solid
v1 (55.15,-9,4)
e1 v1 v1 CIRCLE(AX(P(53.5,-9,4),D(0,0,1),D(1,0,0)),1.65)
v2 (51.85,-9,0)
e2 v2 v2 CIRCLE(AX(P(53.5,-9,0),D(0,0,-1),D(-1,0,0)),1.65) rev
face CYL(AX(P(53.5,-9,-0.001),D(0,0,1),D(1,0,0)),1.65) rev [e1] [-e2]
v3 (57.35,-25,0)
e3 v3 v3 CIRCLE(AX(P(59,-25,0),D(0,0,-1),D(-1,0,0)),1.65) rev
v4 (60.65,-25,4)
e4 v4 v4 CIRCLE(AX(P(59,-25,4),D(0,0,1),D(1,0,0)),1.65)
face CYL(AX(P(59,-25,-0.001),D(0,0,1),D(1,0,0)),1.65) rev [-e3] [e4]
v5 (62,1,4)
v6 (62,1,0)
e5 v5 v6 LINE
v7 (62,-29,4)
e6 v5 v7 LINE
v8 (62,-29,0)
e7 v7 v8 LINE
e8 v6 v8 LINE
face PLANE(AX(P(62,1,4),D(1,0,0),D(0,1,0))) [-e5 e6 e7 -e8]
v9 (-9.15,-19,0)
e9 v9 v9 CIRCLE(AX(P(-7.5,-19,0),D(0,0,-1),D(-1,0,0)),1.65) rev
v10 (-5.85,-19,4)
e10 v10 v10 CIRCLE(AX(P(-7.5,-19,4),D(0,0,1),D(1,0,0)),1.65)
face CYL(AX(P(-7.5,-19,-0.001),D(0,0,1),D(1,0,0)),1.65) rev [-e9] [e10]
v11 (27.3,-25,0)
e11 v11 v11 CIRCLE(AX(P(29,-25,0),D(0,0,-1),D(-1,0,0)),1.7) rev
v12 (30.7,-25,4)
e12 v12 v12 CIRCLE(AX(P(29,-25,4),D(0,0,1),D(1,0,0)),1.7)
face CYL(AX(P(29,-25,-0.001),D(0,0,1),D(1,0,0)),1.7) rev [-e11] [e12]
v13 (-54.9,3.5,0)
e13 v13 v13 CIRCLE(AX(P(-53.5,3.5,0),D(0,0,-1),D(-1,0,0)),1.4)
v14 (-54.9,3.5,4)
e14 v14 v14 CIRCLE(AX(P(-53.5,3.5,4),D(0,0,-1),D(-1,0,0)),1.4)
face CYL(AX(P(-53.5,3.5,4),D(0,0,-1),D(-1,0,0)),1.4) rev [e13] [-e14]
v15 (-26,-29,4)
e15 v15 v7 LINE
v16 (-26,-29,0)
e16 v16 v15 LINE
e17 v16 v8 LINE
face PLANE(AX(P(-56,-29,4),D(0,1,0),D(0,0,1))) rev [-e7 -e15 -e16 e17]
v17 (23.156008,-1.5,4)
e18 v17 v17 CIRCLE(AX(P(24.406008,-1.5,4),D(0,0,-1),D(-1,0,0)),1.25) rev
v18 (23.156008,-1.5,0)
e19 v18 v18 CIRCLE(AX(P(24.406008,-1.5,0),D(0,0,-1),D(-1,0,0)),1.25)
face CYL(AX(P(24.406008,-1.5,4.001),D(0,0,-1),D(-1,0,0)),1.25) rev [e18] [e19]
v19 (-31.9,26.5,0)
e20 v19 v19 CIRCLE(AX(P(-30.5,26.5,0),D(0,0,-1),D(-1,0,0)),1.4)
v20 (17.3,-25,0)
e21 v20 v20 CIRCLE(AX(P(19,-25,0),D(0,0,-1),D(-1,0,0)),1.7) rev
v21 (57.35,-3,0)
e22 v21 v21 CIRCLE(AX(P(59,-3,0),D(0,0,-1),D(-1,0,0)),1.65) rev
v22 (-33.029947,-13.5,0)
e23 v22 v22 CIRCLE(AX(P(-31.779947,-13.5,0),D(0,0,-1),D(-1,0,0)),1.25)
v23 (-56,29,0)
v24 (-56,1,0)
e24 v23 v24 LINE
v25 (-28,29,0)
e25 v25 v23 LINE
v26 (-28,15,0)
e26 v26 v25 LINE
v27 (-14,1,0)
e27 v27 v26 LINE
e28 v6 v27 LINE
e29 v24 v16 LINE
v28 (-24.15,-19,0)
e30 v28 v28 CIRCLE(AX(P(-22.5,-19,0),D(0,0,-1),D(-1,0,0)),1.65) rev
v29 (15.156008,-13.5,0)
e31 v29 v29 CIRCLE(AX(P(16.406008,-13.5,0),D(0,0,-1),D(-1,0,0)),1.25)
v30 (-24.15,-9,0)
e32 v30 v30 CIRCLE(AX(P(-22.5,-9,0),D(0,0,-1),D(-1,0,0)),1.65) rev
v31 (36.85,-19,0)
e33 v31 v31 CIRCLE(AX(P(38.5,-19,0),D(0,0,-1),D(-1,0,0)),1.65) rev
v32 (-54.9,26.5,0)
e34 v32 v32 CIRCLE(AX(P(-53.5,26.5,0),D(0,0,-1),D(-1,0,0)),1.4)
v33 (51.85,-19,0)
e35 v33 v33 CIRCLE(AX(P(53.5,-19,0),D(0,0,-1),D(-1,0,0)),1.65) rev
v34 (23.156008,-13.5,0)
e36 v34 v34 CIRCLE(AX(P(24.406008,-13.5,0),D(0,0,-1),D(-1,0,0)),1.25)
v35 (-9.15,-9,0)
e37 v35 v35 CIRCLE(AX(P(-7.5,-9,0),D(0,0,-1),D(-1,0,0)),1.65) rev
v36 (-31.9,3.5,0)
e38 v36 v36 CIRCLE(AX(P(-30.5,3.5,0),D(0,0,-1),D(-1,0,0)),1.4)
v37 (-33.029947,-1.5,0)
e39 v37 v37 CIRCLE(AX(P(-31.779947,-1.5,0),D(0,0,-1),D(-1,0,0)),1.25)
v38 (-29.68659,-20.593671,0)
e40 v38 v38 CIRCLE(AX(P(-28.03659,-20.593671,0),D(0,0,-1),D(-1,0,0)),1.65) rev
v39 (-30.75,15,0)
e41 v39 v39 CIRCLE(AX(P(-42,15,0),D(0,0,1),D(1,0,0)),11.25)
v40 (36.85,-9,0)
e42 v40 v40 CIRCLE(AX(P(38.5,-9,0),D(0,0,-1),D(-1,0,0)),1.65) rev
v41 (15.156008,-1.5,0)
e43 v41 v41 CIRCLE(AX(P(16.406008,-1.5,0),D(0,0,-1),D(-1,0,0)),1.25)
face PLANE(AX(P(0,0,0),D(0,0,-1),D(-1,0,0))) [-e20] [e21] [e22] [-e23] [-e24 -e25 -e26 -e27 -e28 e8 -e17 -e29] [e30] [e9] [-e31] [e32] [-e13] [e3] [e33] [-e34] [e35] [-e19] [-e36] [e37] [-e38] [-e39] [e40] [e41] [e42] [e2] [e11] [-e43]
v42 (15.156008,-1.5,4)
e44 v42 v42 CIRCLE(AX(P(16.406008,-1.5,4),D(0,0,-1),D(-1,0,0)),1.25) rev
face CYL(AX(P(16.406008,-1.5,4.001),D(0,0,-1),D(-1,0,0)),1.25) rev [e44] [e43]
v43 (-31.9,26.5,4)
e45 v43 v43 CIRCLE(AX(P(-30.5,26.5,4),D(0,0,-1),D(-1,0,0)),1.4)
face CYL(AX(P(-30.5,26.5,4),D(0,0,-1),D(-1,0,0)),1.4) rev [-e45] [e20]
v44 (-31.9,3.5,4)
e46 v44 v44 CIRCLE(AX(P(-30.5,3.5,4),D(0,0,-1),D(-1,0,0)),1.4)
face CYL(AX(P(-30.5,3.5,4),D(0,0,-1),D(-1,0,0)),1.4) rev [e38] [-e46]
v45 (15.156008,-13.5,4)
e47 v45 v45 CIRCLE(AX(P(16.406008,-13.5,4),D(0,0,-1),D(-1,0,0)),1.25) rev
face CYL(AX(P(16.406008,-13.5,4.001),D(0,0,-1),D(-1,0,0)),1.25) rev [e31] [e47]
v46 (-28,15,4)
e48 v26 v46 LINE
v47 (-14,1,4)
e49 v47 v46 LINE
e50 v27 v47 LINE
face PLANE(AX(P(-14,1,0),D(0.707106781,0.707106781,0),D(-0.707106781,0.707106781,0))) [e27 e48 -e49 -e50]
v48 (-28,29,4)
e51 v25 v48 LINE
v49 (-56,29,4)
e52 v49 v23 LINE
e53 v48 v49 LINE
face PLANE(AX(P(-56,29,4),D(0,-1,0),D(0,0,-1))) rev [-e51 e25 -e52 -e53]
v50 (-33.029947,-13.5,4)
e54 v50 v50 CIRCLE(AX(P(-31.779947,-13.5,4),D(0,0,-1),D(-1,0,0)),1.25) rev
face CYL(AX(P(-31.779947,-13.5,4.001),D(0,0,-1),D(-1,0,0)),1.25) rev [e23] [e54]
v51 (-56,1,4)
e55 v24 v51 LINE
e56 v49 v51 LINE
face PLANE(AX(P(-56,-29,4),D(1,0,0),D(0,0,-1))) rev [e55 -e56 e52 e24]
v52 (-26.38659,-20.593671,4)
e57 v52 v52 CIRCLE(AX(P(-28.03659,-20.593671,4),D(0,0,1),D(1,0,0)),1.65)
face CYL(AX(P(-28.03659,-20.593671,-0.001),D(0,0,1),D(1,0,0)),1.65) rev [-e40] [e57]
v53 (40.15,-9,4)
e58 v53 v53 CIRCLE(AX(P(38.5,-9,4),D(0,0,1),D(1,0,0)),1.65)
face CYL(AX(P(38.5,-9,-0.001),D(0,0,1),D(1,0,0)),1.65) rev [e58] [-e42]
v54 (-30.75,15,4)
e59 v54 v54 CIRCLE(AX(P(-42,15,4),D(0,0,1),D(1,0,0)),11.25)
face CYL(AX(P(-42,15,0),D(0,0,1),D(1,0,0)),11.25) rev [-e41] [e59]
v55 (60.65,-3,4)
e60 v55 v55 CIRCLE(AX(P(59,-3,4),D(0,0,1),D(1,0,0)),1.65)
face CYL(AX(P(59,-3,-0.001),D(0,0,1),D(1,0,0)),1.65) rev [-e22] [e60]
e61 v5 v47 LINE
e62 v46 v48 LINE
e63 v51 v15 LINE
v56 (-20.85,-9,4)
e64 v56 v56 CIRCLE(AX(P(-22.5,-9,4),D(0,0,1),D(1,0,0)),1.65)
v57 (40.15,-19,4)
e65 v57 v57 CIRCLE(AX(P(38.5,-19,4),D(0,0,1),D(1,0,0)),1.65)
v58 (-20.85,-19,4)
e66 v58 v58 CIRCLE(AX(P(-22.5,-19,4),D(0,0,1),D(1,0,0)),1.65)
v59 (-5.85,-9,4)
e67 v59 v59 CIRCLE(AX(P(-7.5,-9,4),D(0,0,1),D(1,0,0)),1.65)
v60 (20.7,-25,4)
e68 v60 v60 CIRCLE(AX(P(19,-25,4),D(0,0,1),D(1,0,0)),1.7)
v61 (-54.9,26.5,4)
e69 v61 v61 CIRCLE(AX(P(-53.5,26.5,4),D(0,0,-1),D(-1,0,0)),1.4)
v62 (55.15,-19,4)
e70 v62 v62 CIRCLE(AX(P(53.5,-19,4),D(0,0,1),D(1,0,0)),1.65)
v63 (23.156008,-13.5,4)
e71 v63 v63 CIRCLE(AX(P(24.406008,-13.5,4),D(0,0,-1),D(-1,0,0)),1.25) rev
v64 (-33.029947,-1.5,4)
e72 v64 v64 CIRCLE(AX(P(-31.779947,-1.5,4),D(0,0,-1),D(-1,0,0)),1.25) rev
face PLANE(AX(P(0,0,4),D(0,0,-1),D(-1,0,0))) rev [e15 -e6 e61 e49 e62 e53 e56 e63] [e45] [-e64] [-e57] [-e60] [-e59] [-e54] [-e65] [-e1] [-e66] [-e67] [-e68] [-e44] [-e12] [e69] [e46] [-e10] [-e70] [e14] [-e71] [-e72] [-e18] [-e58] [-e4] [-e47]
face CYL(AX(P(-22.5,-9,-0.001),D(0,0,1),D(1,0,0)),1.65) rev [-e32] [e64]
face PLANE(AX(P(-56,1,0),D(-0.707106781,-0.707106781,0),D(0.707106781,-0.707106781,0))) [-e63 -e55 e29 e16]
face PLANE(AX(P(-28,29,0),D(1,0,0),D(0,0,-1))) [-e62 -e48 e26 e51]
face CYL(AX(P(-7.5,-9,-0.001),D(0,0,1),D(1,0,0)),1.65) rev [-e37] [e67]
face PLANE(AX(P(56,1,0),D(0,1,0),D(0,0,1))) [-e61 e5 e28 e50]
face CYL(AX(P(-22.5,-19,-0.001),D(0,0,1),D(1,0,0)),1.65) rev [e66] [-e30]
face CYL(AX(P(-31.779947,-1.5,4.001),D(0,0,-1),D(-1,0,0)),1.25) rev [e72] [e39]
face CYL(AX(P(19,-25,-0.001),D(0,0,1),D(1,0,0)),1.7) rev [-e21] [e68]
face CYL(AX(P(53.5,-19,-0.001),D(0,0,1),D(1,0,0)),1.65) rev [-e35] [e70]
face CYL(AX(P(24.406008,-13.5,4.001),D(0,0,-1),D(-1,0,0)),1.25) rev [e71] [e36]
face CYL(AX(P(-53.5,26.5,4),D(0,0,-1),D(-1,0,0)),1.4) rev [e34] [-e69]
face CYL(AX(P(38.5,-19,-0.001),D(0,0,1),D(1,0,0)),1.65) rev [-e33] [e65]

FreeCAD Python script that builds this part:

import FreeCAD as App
import Part
import Sketcher

V = App.Vector

doc = App.newDocument("Part")
body = doc.addObject("PartDesign::Body", "Body")

# Sketch on XY plane
sketch1 = body.newObject("Sketcher::SketchObject", "Sketch")
sketch1.AttachmentSupport = (doc.getObject("XY_Plane"), [""])
sketch1.MapMode = "FlatFace"
sketch1.addGeometry(Part.LineSegment(V(-56, 29, 0), V(-56, -29, 0)), False)
sketch1.addGeometry(Part.LineSegment(V(-56, -29, 0), V(56, -29, 0)), False)
sketch1.addGeometry(Part.LineSegment(V(56, -29, 0), V(56, 29, 0)), False)
sketch1.addGeometry(Part.LineSegment(V(56, 29, 0), V(-56, 29, 0)), False)
sketch1.addConstraint(Sketcher.Constraint("Coincident", 0, 2, 1, 1))
sketch1.addConstraint(Sketcher.Constraint("Coincident", 1, 2, 2, 1))
sketch1.addConstraint(Sketcher.Constraint("Coincident", 2, 2, 3, 1))
sketch1.addConstraint(Sketcher.Constraint("Coincident", 3, 2, 0, 1))
sketch1.addConstraint(Sketcher.Constraint("Vertical", 0))
sketch1.addConstraint(Sketcher.Constraint("Horizontal", 1))
sketch1.addConstraint(Sketcher.Constraint("Vertical", 2))
sketch1.addConstraint(Sketcher.Constraint("Horizontal", 3))
sketch1.addConstraint(Sketcher.Constraint("Symmetric", 0, 2, 2, 2, -1, 1))
sketch1.addConstraint(Sketcher.Constraint("DistanceX", 1, 1, 1, 2, 112.0))
sketch1.addConstraint(Sketcher.Constraint("DistanceY", 0, 2, 0, 1, 58.0))
pad1 = body.newObject("PartDesign::Pad", "Pad")
pad1.Profile = sketch1
pad1.Length = 4

# Sketch on XY plane
sketch2 = body.newObject("Sketcher::SketchObject", "Sketch001")
sketch2.AttachmentSupport = (doc.getObject("XY_Plane"), [""])
sketch2.MapMode = "FlatFace"
sketch2.AttachmentOffset = App.Placement(V(0, 0, 4), App.Rotation())
sketch2.addGeometry(Part.LineSegment(V(-70, 43, 0), V(-70, -43, 0)), False)
sketch2.addGeometry(Part.LineSegment(V(-70, -43, 0), V(70, -43, 0)), False)
sketch2.addGeometry(Part.LineSegment(V(70, -43, 0), V(70, 43, 0)), False)
sketch2.addGeometry(Part.LineSegment(V(70, 43, 0), V(-70, 43, 0)), False)
sketch2.addGeometry(Part.LineSegment(V(-14, 1, 0), V(56, 1, 0)), False)
sketch2.addGeometry(Part.LineSegment(V(56, 1, 0), V(56, -29, 0)), False)
sketch2.addGeometry(Part.LineSegment(V(56, -29, 0), V(-26, -29, 0)), False)
sketch2.addGeometry(Part.LineSegment(V(-26, -29, 0), V(-56, 1, 0)), False)
sketch2.addGeometry(Part.LineSegment(V(-56, 1, 0), V(-56, 29, 0)), False)
sketch2.addGeometry(Part.LineSegment(V(-56, 29, 0), V(-28, 29, 0)), False)
sketch2.addGeometry(Part.LineSegment(V(-28, 29, 0), V(-28, 15, 0)), False)
sketch2.addGeometry(Part.LineSegment(V(-28, 15, 0), V(-14, 1, 0)), False)
sketch2.addConstraint(Sketcher.Constraint("Coincident", 0, 2, 1, 1))
sketch2.addConstraint(Sketcher.Constraint("Coincident", 1, 2, 2, 1))
sketch2.addConstraint(Sketcher.Constraint("Coincident", 2, 2, 3, 1))
sketch2.addConstraint(Sketcher.Constraint("Coincident", 3, 2, 0, 1))
sketch2.addConstraint(Sketcher.Constraint("Coincident", 4, 2, 5, 1))
sketch2.addConstraint(Sketcher.Constraint("Coincident", 5, 2, 6, 1))
sketch2.addConstraint(Sketcher.Constraint("Coincident", 6, 2, 7, 1))
sketch2.addConstraint(Sketcher.Constraint("Coincident", 7, 2, 8, 1))
sketch2.addConstraint(Sketcher.Constraint("Coincident", 8, 2, 9, 1))
sketch2.addConstraint(Sketcher.Constraint("Coincident", 9, 2, 10, 1))
sketch2.addConstraint(Sketcher.Constraint("Coincident", 10, 2, 11, 1))
sketch2.addConstraint(Sketcher.Constraint("Coincident", 11, 2, 4, 1))
sketch2.addConstraint(Sketcher.Constraint("Vertical", 0))
sketch2.addConstraint(Sketcher.Constraint("Horizontal", 1))
sketch2.addConstraint(Sketcher.Constraint("Vertical", 2))
sketch2.addConstraint(Sketcher.Constraint("Horizontal", 3))
sketch2.addConstraint(Sketcher.Constraint("Horizontal", 4))
sketch2.addConstraint(Sketcher.Constraint("Vertical", 5))
sketch2.addConstraint(Sketcher.Constraint("Horizontal", 6))
sketch2.addConstraint(Sketcher.Constraint("Vertical", 8))
sketch2.addConstraint(Sketcher.Constraint("Horizontal", 9))
sketch2.addConstraint(Sketcher.Constraint("Vertical", 10))
sketch2.addConstraint(Sketcher.Constraint("Symmetric", 0, 2, 2, 2, -1, 1))
sketch2.addConstraint(Sketcher.Constraint("Symmetric", 5, 2, 8, 2, -1, 1))
sketch2.addConstraint(Sketcher.Constraint("Parallel", 7, 11))
sketch2.addConstraint(Sketcher.Constraint("Horizontal", 4, 2, 7, 2))
sketch2.addConstraint(Sketcher.Constraint("Equal", 9, 8))
sketch2.addConstraint(Sketcher.Constraint("DistanceX", 4, 1, 4, 2, 70.0))
sketch2.addConstraint(Sketcher.Constraint("DistanceX", 6, 2, 6, 1, 82.0))
sketch2.addConstraint(Sketcher.Constraint("DistanceX", 9, 1, 9, 2, 28.0))
sketch2.addConstraint(Sketcher.Constraint("DistanceY", 5, 2, 5, 1, 30.0))
sketch2.addConstraint(Sketcher.Constraint("DistanceY", 10, 2, 10, 1, 14.0))
sketch2.addConstraint(Sketcher.Constraint("DistanceX", 1, 1, 1, 2, 139.238))
sketch2.addConstraint(Sketcher.Constraint("DistanceY", 0, 2, 0, 1, 85.238))
pocket1 = body.newObject("PartDesign::Pocket", "Pocket")
pocket1.Profile = sketch2
pocket1.Length = 4

# Sketch on XY plane
sketch3 = body.newObject("Sketcher::SketchObject", "Sketch002")
sketch3.AttachmentSupport = (doc.getObject("XY_Plane"), [""])
sketch3.MapMode = "FlatFace"
sketch3.AttachmentOffset = App.Placement(V(0, 0, 4), App.Rotation())
sketch3.addGeometry(Part.Circle(V(-42, 15, 0), V(0, 0, 1), 11), False)
sketch3.addConstraint(Sketcher.Constraint("Diameter", 0, 22.5))
sketch3.addConstraint(Sketcher.Constraint("DistanceX", 0, 3, -1, 1, 42.0))
sketch3.addConstraint(Sketcher.Constraint("DistanceY", -1, 1, 0, 3, 15.0))
pocket2 = body.newObject("PartDesign::Pocket", "Pocket001")
pocket2.Profile = sketch3
pocket2.Length = 4

# Sketch on XY plane
sketch4 = body.newObject("Sketcher::SketchObject", "Sketch003")
sketch4.AttachmentSupport = (doc.getObject("XY_Plane"), [""])
sketch4.MapMode = "FlatFace"
sketch4.AttachmentOffset = App.Placement(V(0, 0, 4), App.Rotation())
sketch4.addGeometry(Part.Circle(V(-22.5, -19, 0), V(0, 0, 1), 1.6), False)
sketch4.addConstraint(Sketcher.Constraint("Diameter", 0, 3.3))
sketch4.addConstraint(Sketcher.Constraint("DistanceY", 0, 3, -1, 1, 19.0))
sketch4.addConstraint(Sketcher.Constraint("DistanceX", 0, 3, -1, 1, 22.5))
pocket3 = body.newObject("PartDesign::Pocket", "Pocket002")
pocket3.Profile = sketch4
pocket3.Type = "UpToFirst"

# Sketch on XY plane
sketch5 = body.newObject("Sketcher::SketchObject", "Sketch004")
sketch5.AttachmentSupport = (doc.getObject("XY_Plane"), [""])
sketch5.MapMode = "FlatFace"
sketch5.AttachmentOffset = App.Placement(V(0, 0, 4), App.Rotation())
sketch5.addGeometry(Part.Circle(V(-22.5, -9, 0), V(0, 0, 1), 1.6), False)
sketch5.addConstraint(Sketcher.Constraint("Diameter", 0, 3.3))
sketch5.addConstraint(Sketcher.Constraint("DistanceY", 0, 3, -1, 1, 9.0))
sketch5.addConstraint(Sketcher.Constraint("DistanceX", 0, 3, -1, 1, 22.5))
pocket4 = body.newObject("PartDesign::Pocket", "Pocket003")
pocket4.Profile = sketch5
pocket4.Type = "UpToFirst"

# Sketch on XY plane
sketch6 = body.newObject("Sketcher::SketchObject", "Sketch005")
sketch6.AttachmentSupport = (doc.getObject("XY_Plane"), [""])
sketch6.MapMode = "FlatFace"
sketch6.AttachmentOffset = App.Placement(V(0, 0, 4), App.Rotation())
sketch6.addGeometry(Part.Circle(V(-7.5, -19, 0), V(0, 0, 1), 1.6), False)
sketch6.addConstraint(Sketcher.Constraint("Diameter", 0, 3.3))
sketch6.addConstraint(Sketcher.Constraint("DistanceY", 0, 3, -1, 1, 19.0))
sketch6.addConstraint(Sketcher.Constraint("DistanceX", 0, 3, -1, 1, 7.5))
pocket5 = body.newObject("PartDesign::Pocket", "Pocket004")
pocket5.Profile = sketch6
pocket5.Type = "UpToFirst"

# Sketch on XY plane
sketch7 = body.newObject("Sketcher::SketchObject", "Sketch006")
sketch7.AttachmentSupport = (doc.getObject("XY_Plane"), [""])
sketch7.MapMode = "FlatFace"
sketch7.AttachmentOffset = App.Placement(V(0, 0, 4), App.Rotation())
sketch7.addGeometry(Part.Circle(V(-7.5, -9, 0), V(0, 0, 1), 1.6), False)
sketch7.addConstraint(Sketcher.Constraint("Diameter", 0, 3.3))
sketch7.addConstraint(Sketcher.Constraint("DistanceY", 0, 3, -1, 1, 9.0))
sketch7.addConstraint(Sketcher.Constraint("DistanceX", 0, 3, -1, 1, 7.5))
pocket6 = body.newObject("PartDesign::Pocket", "Pocket005")
pocket6.Profile = sketch7
pocket6.Type = "UpToFirst"

# Sketch on XY plane
sketch8 = body.newObject("Sketcher::SketchObject", "Sketch007")
sketch8.AttachmentSupport = (doc.getObject("XY_Plane"), [""])
sketch8.MapMode = "FlatFace"
sketch8.AttachmentOffset = App.Placement(V(0, 0, 4), App.Rotation())
sketch8.addGeometry(Part.Circle(V(38.5, -19, 0), V(0, 0, 1), 1.6), False)
sketch8.addConstraint(Sketcher.Constraint("Diameter", 0, 3.3))
sketch8.addConstraint(Sketcher.Constraint("DistanceY", 0, 3, -1, 1, 19.0))
sketch8.addConstraint(Sketcher.Constraint("DistanceX", -1, 1, 0, 3, 38.5))
pocket7 = body.newObject("PartDesign::Pocket", "Pocket006")
pocket7.Profile = sketch8
pocket7.Type = "UpToFirst"

# Sketch on XY plane
sketch9 = body.newObject("Sketcher::SketchObject", "Sketch008")
sketch9.AttachmentSupport = (doc.getObject("XY_Plane"), [""])
sketch9.MapMode = "FlatFace"
sketch9.AttachmentOffset = App.Placement(V(0, 0, 4), App.Rotation())
sketch9.addGeometry(Part.Circle(V(38.5, -9, 0), V(0, 0, 1), 1.6), False)
sketch9.addConstraint(Sketcher.Constraint("Diameter", 0, 3.3))
sketch9.addConstraint(Sketcher.Constraint("DistanceY", 0, 3, -1, 1, 9.0))
sketch9.addConstraint(Sketcher.Constraint("DistanceX", -1, 1, 0, 3, 38.5))
pocket8 = body.newObject("PartDesign::Pocket", "Pocket007")
pocket8.Profile = sketch9
pocket8.Type = "UpToFirst"

# Sketch on XY plane
sketch10 = body.newObject("Sketcher::SketchObject", "Sketch009")
sketch10.AttachmentSupport = (doc.getObject("XY_Plane"), [""])
sketch10.MapMode = "FlatFace"
sketch10.AttachmentOffset = App.Placement(V(0, 0, 4), App.Rotation())
sketch10.addGeometry(Part.Circle(V(53.5, -19, 0), V(0, 0, 1), 1.6), False)
sketch10.addConstraint(Sketcher.Constraint("Diameter", 0, 3.3))
sketch10.addConstraint(Sketcher.Constraint("DistanceY", 0, 3, -1, 1, 19.0))
sketch10.addConstraint(Sketcher.Constraint("DistanceX", -1, 1, 0, 3, 53.5))
pocket9 = body.newObject("PartDesign::Pocket", "Pocket008")
pocket9.Profile = sketch10
pocket9.Type = "UpToFirst"

# Sketch on XY plane
sketch11 = body.newObject("Sketcher::SketchObject", "Sketch010")
sketch11.AttachmentSupport = (doc.getObject("XY_Plane"), [""])
sketch11.MapMode = "FlatFace"
sketch11.AttachmentOffset = App.Placement(V(0, 0, 4), App.Rotation())
sketch11.addGeometry(Part.Circle(V(53.5, -9, 0), V(0, 0, 1), 1.6), False)
sketch11.addConstraint(Sketcher.Constraint("Diameter", 0, 3.3))
sketch11.addConstraint(Sketcher.Constraint("DistanceY", 0, 3, -1, 1, 9.0))
sketch11.addConstraint(Sketcher.Constraint("DistanceX", -1, 1, 0, 3, 53.5))
pocket10 = body.newObject("PartDesign::Pocket", "Pocket009")
pocket10.Profile = sketch11
pocket10.Type = "UpToFirst"

# Sketch on XY plane
sketch12 = body.newObject("Sketcher::SketchObject", "Sketch011")
sketch12.AttachmentSupport = (doc.getObject("XY_Plane"), [""])
sketch12.MapMode = "FlatFace"
sketch12.AttachmentOffset = App.Placement(V(0, 0, 4), App.Rotation())
sketch12.addGeometry(Part.Circle(V(19, -25, 0), V(0, 0, 1), 1.7), False)
sketch12.addConstraint(Sketcher.Constraint("Diameter", 0, 3.4))
sketch12.addConstraint(Sketcher.Constraint("DistanceX", -1, 1, 0, 3, 19.0))
sketch12.addConstraint(Sketcher.Constraint("DistanceY", 0, 3, -1, 1, 25.0))
pocket11 = body.newObject("PartDesign::Pocket", "Pocket010")
pocket11.Profile = sketch12
pocket11.Type = "UpToFirst"

# Sketch on XY plane
sketch13 = body.newObject("Sketcher::SketchObject", "Sketch012")
sketch13.AttachmentSupport = (doc.getObject("XY_Plane"), [""])
sketch13.MapMode = "FlatFace"
sketch13.AttachmentOffset = App.Placement(V(0, 0, 4), App.Rotation())
sketch13.addGeometry(Part.Circle(V(29, -25, 0), V(0, 0, 1), 1.7), False)
sketch13.addConstraint(Sketcher.Constraint("Diameter", 0, 3.4))
sketch13.addConstraint(Sketcher.Constraint("DistanceX", -1, 1, 0, 3, 29.0))
sketch13.addConstraint(Sketcher.Constraint("DistanceY", 0, 3, -1, 1, 25.0))
pocket12 = body.newObject("PartDesign::Pocket", "Pocket011")
pocket12.Profile = sketch13
pocket12.Type = "UpToFirst"

# Sketch on XY plane
sketch14 = body.newObject("Sketcher::SketchObject", "Sketch013")
sketch14.AttachmentSupport = (doc.getObject("XY_Plane"), [""])
sketch14.MapMode = "FlatFace"
sketch14.addGeometry(Part.Circle(V(16.4, -13.5, 0), V(0, 0, 1), 1.2), False)
sketch14.addConstraint(Sketcher.Constraint("Diameter", 0, 2.5))
sketch14.addConstraint(Sketcher.Constraint("DistanceY", 0, 3, -1, 1, 13.5))
sketch14.addConstraint(Sketcher.Constraint("DistanceX", -1, 1, 0, 3, 16.406008))
pocket13 = body.newObject("PartDesign::Pocket", "Pocket012")
pocket13.Profile = sketch14
pocket13.Type = "UpToFirst"
pocket13.Reversed = True

# Sketch on XY plane
sketch15 = body.newObject("Sketcher::SketchObject", "Sketch014")
sketch15.AttachmentSupport = (doc.getObject("XY_Plane"), [""])
sketch15.MapMode = "FlatFace"
sketch15.addGeometry(Part.Circle(V(24.4, -13.5, 0), V(0, 0, 1), 1.2), False)
sketch15.addConstraint(Sketcher.Constraint("Diameter", 0, 2.5))
sketch15.addConstraint(Sketcher.Constraint("DistanceY", 0, 3, -1, 1, 13.5))
sketch15.addConstraint(Sketcher.Constraint("DistanceX", -1, 1, 0, 3, 24.406008))
pocket14 = body.newObject("PartDesign::Pocket", "Pocket013")
pocket14.Profile = sketch15
pocket14.Type = "UpToFirst"
pocket14.Reversed = True

# Sketch on XY plane
sketch16 = body.newObject("Sketcher::SketchObject", "Sketch015")
sketch16.AttachmentSupport = (doc.getObject("XY_Plane"), [""])
sketch16.MapMode = "FlatFace"
sketch16.addGeometry(Part.Circle(V(16.4, -1.5, 0), V(0, 0, 1), 1.2), False)
sketch16.addConstraint(Sketcher.Constraint("Diameter", 0, 2.5))
sketch16.addConstraint(Sketcher.Constraint("DistanceY", 0, 3, -1, 1, 1.5))
sketch16.addConstraint(Sketcher.Constraint("DistanceX", -1, 1, 0, 3, 16.406008))
pocket15 = body.newObject("PartDesign::Pocket", "Pocket014")
pocket15.Profile = sketch16
pocket15.Type = "UpToFirst"
pocket15.Reversed = True

# Sketch on XY plane
sketch17 = body.newObject("Sketcher::SketchObject", "Sketch016")
sketch17.AttachmentSupport = (doc.getObject("XY_Plane"), [""])
sketch17.MapMode = "FlatFace"
sketch17.addGeometry(Part.Circle(V(24.4, -1.5, 0), V(0, 0, 1), 1.2), False)
sketch17.addConstraint(Sketcher.Constraint("Diameter", 0, 2.5))
sketch17.addConstraint(Sketcher.Constraint("DistanceY", 0, 3, -1, 1, 1.5))
sketch17.addConstraint(Sketcher.Constraint("DistanceX", -1, 1, 0, 3, 24.406008))
pocket16 = body.newObject("PartDesign::Pocket", "Pocket015")
pocket16.Profile = sketch17
pocket16.Type = "UpToFirst"
pocket16.Reversed = True

# Sketch on XY plane
sketch18 = body.newObject("Sketcher::SketchObject", "Sketch017")
sketch18.AttachmentSupport = (doc.getObject("XY_Plane"), [""])
sketch18.MapMode = "FlatFace"
sketch18.addGeometry(Part.Circle(V(-31.8, -13.5, 0), V(0, 0, 1), 1.2), False)
sketch18.addConstraint(Sketcher.Constraint("Diameter", 0, 2.5))
sketch18.addConstraint(Sketcher.Constraint("DistanceY", 0, 3, -1, 1, 13.5))
sketch18.addConstraint(Sketcher.Constraint("DistanceX", 0, 3, -1, 1, 31.779947))
pocket17 = body.newObject("PartDesign::Pocket", "Pocket016")
pocket17.Profile = sketch18
pocket17.Type = "UpToFirst"
pocket17.Reversed = True

# Sketch on XY plane
sketch19 = body.newObject("Sketcher::SketchObject", "Sketch018")
sketch19.AttachmentSupport = (doc.getObject("XY_Plane"), [""])
sketch19.MapMode = "FlatFace"
sketch19.addGeometry(Part.Circle(V(-31.8, -1.5, 0), V(0, 0, 1), 1.2), False)
sketch19.addConstraint(Sketcher.Constraint("Diameter", 0, 2.5))
sketch19.addConstraint(Sketcher.Constraint("DistanceY", 0, 3, -1, 1, 1.5))
sketch19.addConstraint(Sketcher.Constraint("DistanceX", 0, 3, -1, 1, 31.779947))
pocket18 = body.newObject("PartDesign::Pocket", "Pocket017")
pocket18.Profile = sketch19
pocket18.Type = "UpToFirst"
pocket18.Reversed = True

# Sketch on XY plane
sketch20 = body.newObject("Sketcher::SketchObject", "Sketch019")
sketch20.AttachmentSupport = (doc.getObject("XY_Plane"), [""])
sketch20.MapMode = "FlatFace"
sketch20.addGeometry(Part.LineSegment(V(62, 1, 0), V(62, -29, 0)), False)
sketch20.addGeometry(Part.LineSegment(V(62, -29, 0), V(56, -29, 0)), False)
sketch20.addGeometry(Part.LineSegment(V(56, -29, 0), V(56, 1, 0)), False)
sketch20.addGeometry(Part.LineSegment(V(56, 1, 0), V(62, 1, 0)), False)
sketch20.addConstraint(Sketcher.Constraint("Coincident", 0, 2, 1, 1))
sketch20.addConstraint(Sketcher.Constraint("Coincident", 1, 2, 2, 1))
sketch20.addConstraint(Sketcher.Constraint("Coincident", 2, 2, 3, 1))
sketch20.addConstraint(Sketcher.Constraint("Coincident", 3, 2, 0, 1))
sketch20.addConstraint(Sketcher.Constraint("Vertical", 0))
sketch20.addConstraint(Sketcher.Constraint("Horizontal", 1))
sketch20.addConstraint(Sketcher.Constraint("Vertical", 2))
sketch20.addConstraint(Sketcher.Constraint("Horizontal", 3))
sketch20.addConstraint(Sketcher.Constraint("DistanceX", 1, 2, 1, 1, 6.0))
sketch20.addConstraint(Sketcher.Constraint("DistanceY", 0, 2, 0, 1, 30.0))
sketch20.addConstraint(Sketcher.Constraint("DistanceX", -1, 1, 0, 2, 62.0))
sketch20.addConstraint(Sketcher.Constraint("DistanceY", 0, 2, -1, 1, 29.0))
pad2 = body.newObject("PartDesign::Pad", "Pad001")
pad2.Profile = sketch20
pad2.Length = 4

# Sketch on XY plane
sketch21 = body.newObject("Sketcher::SketchObject", "Sketch020")
sketch21.AttachmentSupport = (doc.getObject("XY_Plane"), [""])
sketch21.MapMode = "FlatFace"
sketch21.AttachmentOffset = App.Placement(V(0, 0, 4), App.Rotation())
sketch21.addGeometry(Part.Circle(V(59, -25, 0), V(0, 0, 1), 1.6), False)
sketch21.addConstraint(Sketcher.Constraint("Diameter", 0, 3.3))
sketch21.addConstraint(Sketcher.Constraint("DistanceX", -1, 1, 0, 3, 59.0))
sketch21.addConstraint(Sketcher.Constraint("DistanceY", 0, 3, -1, 1, 25.0))
pocket19 = body.newObject("PartDesign::Pocket", "Pocket018")
pocket19.Profile = sketch21
pocket19.Type = "UpToFirst"

# Sketch on XY plane
sketch22 = body.newObject("Sketcher::SketchObject", "Sketch021")
sketch22.AttachmentSupport = (doc.getObject("XY_Plane"), [""])
sketch22.MapMode = "FlatFace"
sketch22.AttachmentOffset = App.Placement(V(0, 0, 4), App.Rotation())
sketch22.addGeometry(Part.Circle(V(59, -3, 0), V(0, 0, 1), 1.6), False)
sketch22.addConstraint(Sketcher.Constraint("Diameter", 0, 3.3))
sketch22.addConstraint(Sketcher.Constraint("DistanceX", -1, 1, 0, 3, 59.0))
sketch22.addConstraint(Sketcher.Constraint("DistanceY", 0, 3, -1, 1, 3.0))
pocket20 = body.newObject("PartDesign::Pocket", "Pocket019")
pocket20.Profile = sketch22
pocket20.Type = "UpToFirst"

# Sketch on XY plane
sketch23 = body.newObject("Sketcher::SketchObject", "Sketch022")
sketch23.AttachmentSupport = (doc.getObject("XY_Plane"), [""])
sketch23.MapMode = "FlatFace"
sketch23.AttachmentOffset = App.Placement(V(0, 0, 4), App.Rotation())
sketch23.addGeometry(Part.Circle(V(-28, -20.6, 0), V(0, 0, 1), 1.6), False)
sketch23.addConstraint(Sketcher.Constraint("Diameter", 0, 3.3))
sketch23.addConstraint(Sketcher.Constraint("DistanceX", 0, 3, -1, 1, 28.03659))
sketch23.addConstraint(Sketcher.Constraint("DistanceY", 0, 3, -1, 1, 20.593671))
pocket21 = body.newObject("PartDesign::Pocket", "Pocket020")
pocket21.Profile = sketch23
pocket21.Type = "UpToFirst"

# Sketch on XY plane
sketch24 = body.newObject("Sketcher::SketchObject", "Sketch023")
sketch24.AttachmentSupport = (doc.getObject("XY_Plane"), [""])
sketch24.MapMode = "FlatFace"
sketch24.addGeometry(Part.Circle(V(-53.5, 26.5, 0), V(0, 0, 1), 1.4), False)
sketch24.addGeometry(Part.Circle(V(-53.5, 3.5, 0), V(0, 0, 1), 1.4), False)
sketch24.addGeometry(Part.Circle(V(-30.5, 3.5, 0), V(0, 0, 1), 1.4), False)
sketch24.addGeometry(Part.Circle(V(-30.5, 26.5, 0), V(0, 0, 1), 1.4), False)
sketch24.addConstraint(Sketcher.Constraint("Equal", 0, 1))
sketch24.addConstraint(Sketcher.Constraint("Equal", 1, 2))
sketch24.addConstraint(Sketcher.Constraint("Equal", 2, 3))
sketch24.addConstraint(Sketcher.Constraint("Horizontal", 1, 3, 2, 3))
sketch24.addConstraint(Sketcher.Constraint("Horizontal", 0, 3, 3, 3))
sketch24.addConstraint(Sketcher.Constraint("Vertical", 0, 3, 1, 3))
sketch24.addConstraint(Sketcher.Constraint("Vertical", 2, 3, 3, 3))
sketch24.addConstraint(Sketcher.Constraint("Diameter", 0, 2.8))
sketch24.addConstraint(Sketcher.Constraint("DistanceY", 1, 3, 0, 3, 23.0))
sketch24.addConstraint(Sketcher.Constraint("DistanceX", 1, 3, 2, 3, 23.0))
sketch24.addConstraint(Sketcher.Constraint("DistanceX", 0, 3, -1, 1, 53.5))
sketch24.addConstraint(Sketcher.Constraint("DistanceY", -1, 1, 0, 3, 26.5))
pocket22 = body.newObject("PartDesign::Pocket", "Pocket021")
pocket22.Profile = sketch24
pocket22.Type = "ThroughAll"
pocket22.Reversed = True

doc.recompute()
